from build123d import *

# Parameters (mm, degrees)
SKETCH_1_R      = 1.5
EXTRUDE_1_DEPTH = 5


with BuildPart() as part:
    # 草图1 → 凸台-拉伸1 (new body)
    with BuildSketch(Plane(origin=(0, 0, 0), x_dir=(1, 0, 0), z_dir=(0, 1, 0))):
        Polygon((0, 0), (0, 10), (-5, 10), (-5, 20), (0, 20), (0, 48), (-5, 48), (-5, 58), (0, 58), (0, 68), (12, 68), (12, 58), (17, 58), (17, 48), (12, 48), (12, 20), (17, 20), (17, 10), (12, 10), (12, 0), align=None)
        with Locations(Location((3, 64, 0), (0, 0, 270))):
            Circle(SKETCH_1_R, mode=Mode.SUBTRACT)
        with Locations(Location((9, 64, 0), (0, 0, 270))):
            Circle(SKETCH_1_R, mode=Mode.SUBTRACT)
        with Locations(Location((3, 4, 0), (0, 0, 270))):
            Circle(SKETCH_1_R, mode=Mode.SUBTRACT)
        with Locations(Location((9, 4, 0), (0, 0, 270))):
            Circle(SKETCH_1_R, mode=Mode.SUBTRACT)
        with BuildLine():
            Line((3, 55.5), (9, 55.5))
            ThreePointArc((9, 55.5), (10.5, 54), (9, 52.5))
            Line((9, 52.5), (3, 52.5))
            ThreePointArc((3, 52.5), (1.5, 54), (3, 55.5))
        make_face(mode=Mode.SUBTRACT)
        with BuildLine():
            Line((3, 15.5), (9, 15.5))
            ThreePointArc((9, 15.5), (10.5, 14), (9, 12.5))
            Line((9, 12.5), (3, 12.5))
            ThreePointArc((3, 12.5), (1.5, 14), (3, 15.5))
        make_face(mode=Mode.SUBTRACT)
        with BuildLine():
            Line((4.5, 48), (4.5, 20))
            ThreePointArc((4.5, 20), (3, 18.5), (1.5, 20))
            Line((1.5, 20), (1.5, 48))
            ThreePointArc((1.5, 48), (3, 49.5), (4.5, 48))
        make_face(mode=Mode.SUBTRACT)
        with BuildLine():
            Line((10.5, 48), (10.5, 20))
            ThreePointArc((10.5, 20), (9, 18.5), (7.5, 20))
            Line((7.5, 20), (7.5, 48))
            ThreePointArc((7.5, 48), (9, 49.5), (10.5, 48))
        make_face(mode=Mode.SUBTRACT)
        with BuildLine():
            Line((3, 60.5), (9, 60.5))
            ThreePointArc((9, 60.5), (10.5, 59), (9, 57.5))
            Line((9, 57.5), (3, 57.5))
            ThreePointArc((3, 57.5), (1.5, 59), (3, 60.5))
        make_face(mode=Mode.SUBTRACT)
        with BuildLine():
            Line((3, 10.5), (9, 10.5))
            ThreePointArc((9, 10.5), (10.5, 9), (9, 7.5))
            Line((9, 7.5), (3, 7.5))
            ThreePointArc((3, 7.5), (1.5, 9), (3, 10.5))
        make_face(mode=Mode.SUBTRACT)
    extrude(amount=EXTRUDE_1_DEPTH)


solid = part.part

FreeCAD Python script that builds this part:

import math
import FreeCAD as App
import Part
import Sketcher
Q = App.Units.Quantity

doc = App.newDocument("Part")
body = doc.addObject("PartDesign::Body", "Body")

sketch1 = doc.addObject("Sketcher::SketchObject", "Sketch")
body.addObject(sketch1)
sketch1.AttachmentSupport = (doc.XZ_Plane, [""])
sketch1.MapMode = "FlatFace"
sketch1.addGeometry([
    Part.LineSegment(App.Vector(0, -10, 0), App.Vector(0, 0, 0)),
    Part.LineSegment(App.Vector(0, 0, 0), App.Vector(12, 0, 0)),
    Part.LineSegment(App.Vector(12, 0, 0), App.Vector(12, -10, 0)),
    Part.LineSegment(App.Vector(12, -10, 0), App.Vector(17, -10, 0)),
    Part.LineSegment(App.Vector(17, -10, 0), App.Vector(17, -20, 0)),
    Part.LineSegment(App.Vector(17, -20, 0), App.Vector(12, -20, 0)),
    Part.LineSegment(App.Vector(12, -20, 0), App.Vector(12, -48, 0)),
    Part.LineSegment(App.Vector(12, -48, 0), App.Vector(17, -48, 0)),
    Part.LineSegment(App.Vector(17, -48, 0), App.Vector(17, -58, 0)),
    Part.LineSegment(App.Vector(17, -58, 0), App.Vector(12, -58, 0)),
    Part.LineSegment(App.Vector(12, -58, 0), App.Vector(12, -68, 0)),
    Part.LineSegment(App.Vector(12, -68, 0), App.Vector(0, -68, 0)),
    Part.LineSegment(App.Vector(0, -68, 0), App.Vector(0, -58, 0)),
    Part.LineSegment(App.Vector(0, -58, 0), App.Vector(-5, -58, 0)),
    Part.LineSegment(App.Vector(-5, -58, 0), App.Vector(-5, -48, 0)),
    Part.LineSegment(App.Vector(-5, -48, 0), App.Vector(0, -48, 0)),
    Part.LineSegment(App.Vector(0, -48, 0), App.Vector(0, -20, 0)),
    Part.LineSegment(App.Vector(0, -20, 0), App.Vector(-5, -20, 0)),
    Part.LineSegment(App.Vector(-5, -20, 0), App.Vector(-5, -10, 0)),
    Part.LineSegment(App.Vector(-5, -10, 0), App.Vector(0, -10, 0)),
    Part.Circle(App.Vector(9, -4, 0), App.Vector(0, 0, 1), 1.5),
    Part.LineSegment(App.Vector(3, -10.5, 0), App.Vector(9, -10.5, 0)),
    Part.ArcOfCircle(Part.Circle(App.Vector(9, -9, 0), App.Vector(0, 0, 1), 1.5), math.radians(-90), math.radians(90)),
    Part.LineSegment(App.Vector(9, -7.5, 0), App.Vector(3, -7.5, 0)),
    Part.ArcOfCircle(Part.Circle(App.Vector(3, -9, 0), App.Vector(0, 0, 1), 1.5), math.radians(90), math.radians(270)),
    Part.LineSegment(App.Vector(3, -15.5, 0), App.Vector(9, -15.5, 0)),
    Part.ArcOfCircle(Part.Circle(App.Vector(9, -14, 0), App.Vector(0, 0, 1), 1.5), math.radians(-90), math.radians(90)),
    Part.LineSegment(App.Vector(9, -12.5, 0), App.Vector(3, -12.5, 0)),
    Part.ArcOfCircle(Part.Circle(App.Vector(3, -14, 0), App.Vector(0, 0, 1), 1.5), math.radians(90), math.radians(270)),
    Part.Circle(App.Vector(3, -4, 0), App.Vector(0, 0, 1), 1.5),
    Part.LineSegment(App.Vector(10.5, -48, 0), App.Vector(10.5, -20, 0)),
    Part.ArcOfCircle(Part.Circle(App.Vector(9, -20, 0), App.Vector(0, 0, 1), 1.5), math.radians(0), math.radians(180)),
    Part.LineSegment(App.Vector(7.5, -20, 0), App.Vector(7.5, -48, 0)),
    Part.ArcOfCircle(Part.Circle(App.Vector(9, -48, 0), App.Vector(0, 0, 1), 1.5), math.radians(180), math.radians(360)),
    Part.Circle(App.Vector(9, -64, 0), App.Vector(0, 0, 1), 1.5),
    Part.LineSegment(App.Vector(4.5, -48, 0), App.Vector(4.5, -20, 0)),
    Part.ArcOfCircle(Part.Circle(App.Vector(3, -20, 0), App.Vector(0, 0, 1), 1.5), math.radians(0), math.radians(180)),
    Part.LineSegment(App.Vector(1.5, -20, 0), App.Vector(1.5, -48, 0)),
    Part.ArcOfCircle(Part.Circle(App.Vector(3, -48, 0), App.Vector(0, 0, 1), 1.5), math.radians(180), math.radians(360)),
    Part.LineSegment(App.Vector(3, -55.5, 0), App.Vector(9, -55.5, 0)),
    Part.ArcOfCircle(Part.Circle(App.Vector(9, -54, 0), App.Vector(0, 0, 1), 1.5), math.radians(-90), math.radians(90)),
    Part.LineSegment(App.Vector(9, -52.5, 0), App.Vector(3, -52.5, 0)),
    Part.ArcOfCircle(Part.Circle(App.Vector(3, -54, 0), App.Vector(0, 0, 1), 1.5), math.radians(90), math.radians(270)),
    Part.LineSegment(App.Vector(3, -60.5, 0), App.Vector(9, -60.5, 0)),
    Part.ArcOfCircle(Part.Circle(App.Vector(9, -59, 0), App.Vector(0, 0, 1), 1.5), math.radians(-90), math.radians(90)),
    Part.LineSegment(App.Vector(9, -57.5, 0), App.Vector(3, -57.5, 0)),
    Part.ArcOfCircle(Part.Circle(App.Vector(3, -59, 0), App.Vector(0, 0, 1), 1.5), math.radians(90), math.radians(270)),
    Part.Circle(App.Vector(3, -64, 0), App.Vector(0, 0, 1), 1.5),
], False)
sketch1.addConstraint([
    Sketcher.Constraint("Coincident", 0, 2, 1, 1),
    Sketcher.Constraint("Coincident", 1, 2, 2, 1),
    Sketcher.Constraint("Coincident", 2, 2, 3, 1),
    Sketcher.Constraint("Coincident", 3, 2, 4, 1),
    Sketcher.Constraint("Coincident", 4, 2, 5, 1),
    Sketcher.Constraint("Coincident", 5, 2, 6, 1),
    Sketcher.Constraint("Coincident", 6, 2, 7, 1),
    Sketcher.Constraint("Coincident", 7, 2, 8, 1),
    Sketcher.Constraint("Coincident", 8, 2, 9, 1),
    Sketcher.Constraint("Coincident", 9, 2, 10, 1),
    Sketcher.Constraint("Coincident", 10, 2, 11, 1),
    Sketcher.Constraint("Coincident", 11, 2, 12, 1),
    Sketcher.Constraint("Coincident", 12, 2, 13, 1),
    Sketcher.Constraint("Coincident", 13, 2, 14, 1),
    Sketcher.Constraint("Coincident", 14, 2, 15, 1),
    Sketcher.Constraint("Coincident", 15, 2, 16, 1),
    Sketcher.Constraint("Coincident", 16, 2, 17, 1),
    Sketcher.Constraint("Coincident", 17, 2, 18, 1),
    Sketcher.Constraint("Coincident", 18, 2, 19, 1),
    Sketcher.Constraint("Coincident", 19, 2, 0, 1),
    Sketcher.Constraint("Tangent", 21, 2, 22, 1),
    Sketcher.Constraint("Tangent", 22, 2, 23, 1),
    Sketcher.Constraint("Tangent", 23, 2, 24, 1),
    Sketcher.Constraint("Tangent", 24, 2, 21, 1),
    Sketcher.Constraint("Tangent", 25, 2, 26, 1),
    Sketcher.Constraint("Tangent", 26, 2, 27, 1),
    Sketcher.Constraint("Tangent", 27, 2, 28, 1),
    Sketcher.Constraint("Tangent", 28, 2, 25, 1),
    Sketcher.Constraint("Tangent", 30, 2, 31, 1),
    Sketcher.Constraint("Tangent", 31, 2, 32, 1),
    Sketcher.Constraint("Tangent", 32, 2, 33, 1),
    Sketcher.Constraint("Tangent", 33, 2, 30, 1),
    Sketcher.Constraint("Tangent", 35, 2, 36, 1),
    Sketcher.Constraint("Tangent", 36, 2, 37, 1),
    Sketcher.Constraint("Tangent", 37, 2, 38, 1),
    Sketcher.Constraint("Tangent", 38, 2, 35, 1),
    Sketcher.Constraint("Tangent", 39, 2, 40, 1),
    Sketcher.Constraint("Tangent", 40, 2, 41, 1),
    Sketcher.Constraint("Tangent", 41, 2, 42, 1),
    Sketcher.Constraint("Tangent", 42, 2, 39, 1),
    Sketcher.Constraint("Tangent", 43, 2, 44, 1),
    Sketcher.Constraint("Tangent", 44, 2, 45, 1),
    Sketcher.Constraint("Tangent", 45, 2, 46, 1),
    Sketcher.Constraint("Tangent", 46, 2, 43, 1),
    Sketcher.Constraint("Vertical", 0),
    Sketcher.Constraint("Horizontal", 1),
    Sketcher.Constraint("Vertical", 2),
    Sketcher.Constraint("Horizontal", 3),
    Sketcher.Constraint("Vertical", 4),
    Sketcher.Constraint("Horizontal", 5),
    Sketcher.Constraint("Vertical", 6),
    Sketcher.Constraint("Horizontal", 7),
    Sketcher.Constraint("Vertical", 8),
    Sketcher.Constraint("Horizontal", 9),
    Sketcher.Constraint("Vertical", 10),
    Sketcher.Constraint("Horizontal", 11),
    Sketcher.Constraint("Vertical", 12),
    Sketcher.Constraint("Horizontal", 13),
    Sketcher.Constraint("Vertical", 14),
    Sketcher.Constraint("Horizontal", 15),
    Sketcher.Constraint("Vertical", 16),
    Sketcher.Constraint("Horizontal", 17),
    Sketcher.Constraint("Vertical", 18),
    Sketcher.Constraint("Horizontal", 19),
    Sketcher.Constraint("Horizontal", 21),
    Sketcher.Constraint("Horizontal", 23),
    Sketcher.Constraint("Horizontal", 25),
    Sketcher.Constraint("Horizontal", 27),
    Sketcher.Constraint("Vertical", 30),
    Sketcher.Constraint("Vertical", 32),
    Sketcher.Constraint("Vertical", 35),
    Sketcher.Constraint("Vertical", 37),
    Sketcher.Constraint("Horizontal", 39),
    Sketcher.Constraint("Horizontal", 41),
    Sketcher.Constraint("Horizontal", 43),
    Sketcher.Constraint("Horizontal", 45),
    Sketcher.Constraint("Coincident", 0, 2, -1, 1),
    Sketcher.Constraint("Equal", 20, 22),
    Sketcher.Constraint("Equal", 24, 26),
    Sketcher.Constraint("Equal", 28, 29),
    Sketcher.Constraint("Equal", 29, 31),
    Sketcher.Constraint("Equal", 33, 34),
    Sketcher.Constraint("Equal", 34, 36),
    Sketcher.Constraint("Equal", 38, 40),
    Sketcher.Constraint("Equal", 42, 44),
    Sketcher.Constraint("Equal", 46, 47),
    Sketcher.Constraint("PointOnObject", 11, 2, -2),
    Sketcher.Constraint("PointOnObject", 15, 2, -2),
    Sketcher.Constraint("Horizontal", 20, 3, 29, 3),
    Sketcher.Constraint("Horizontal", 31, 3, 36, 3),
    Sketcher.Constraint("Horizontal", 33, 3, 38, 3),
    Sketcher.Constraint("Horizontal", 34, 3, 47, 3),
    Sketcher.Constraint("Horizontal", 36, 3, 4, 2),
    Sketcher.Constraint("Horizontal", 38, 3, 6, 2),
    Sketcher.Constraint("Horizontal", 9, 2, 12, 2),
    Sketcher.Constraint("Horizontal", 7, 2, 14, 2),
    Sketcher.Constraint("Horizontal", 5, 2, 16, 2),
    Sketcher.Constraint("Horizontal", 3, 2, 18, 2),
    Sketcher.Constraint("Vertical", 20, 3, 22, 3),
    Sketcher.Constraint("Vertical", 22, 3, 26, 3),
    Sketcher.Constraint("Vertical", 24, 3, 28, 3),
    Sketcher.Constraint("Vertical", 28, 3, 29, 3),
    Sketcher.Constraint("Vertical", 26, 3, 31, 3),
    Sketcher.Constraint("Vertical", 33, 3, 34, 3),
    Sketcher.Constraint("Vertical", 29, 3, 36, 3),
    Sketcher.Constraint("Vertical", 34, 3, 40, 3),
    Sketcher.Constraint("Vertical", 38, 3, 42, 3),
    Sketcher.Constraint("Vertical", 40, 3, 44, 3),
    Sketcher.Constraint("Vertical", 42, 3, 46, 3),
    Sketcher.Constraint("Vertical", 46, 3, 47, 3),
    Sketcher.Constraint("Vertical", 2, 2, 5, 2),
    Sketcher.Constraint("Vertical", 4, 2, 7, 2),
    Sketcher.Constraint("Vertical", 6, 2, 9, 2),
    Sketcher.Constraint("Vertical", 14, 2, 17, 2),
    Sketcher.Constraint("Equal", 9, 13),
    Sketcher.Constraint("Equal", 2, 4),
    Sketcher.Constraint("Equal", 4, 8),
    Sketcher.Constraint("Equal", 8, 10),
    Sketcher.Constraint("Diameter", 20, Q("3 mm")),
    Sketcher.Constraint("DistanceX", 1, 1, 1, 2, Q("12 mm")),
    Sketcher.Constraint("DistanceX", 3, 1, 3, 2, Q("5 mm")),
    Sketcher.Constraint("DistanceX", 21, 1, 21, 2, Q("6 mm")),
    Sketcher.Constraint("DistanceY", 0, 1, 0, 2, Q("10 mm")),
    Sketcher.Constraint("DistanceY", 6, 2, 6, 1, Q("28 mm")),
    Sketcher.Constraint("DistanceX", -1, 1, 20, 3, Q("9 mm")),
    Sketcher.Constraint("DistanceY", 20, 3, -1, 1, Q("4 mm")),
    Sketcher.Constraint("DistanceY", 22, 3, -1, 1, Q("9 mm")),
    Sketcher.Constraint("DistanceY", 26, 3, -1, 1, Q("14 mm")),
    Sketcher.Constraint("DistanceY", 34, 3, -1, 1, Q("64 mm")),
    Sketcher.Constraint("DistanceY", 40, 3, -1, 1, Q("54 mm")),
    Sketcher.Constraint("DistanceY", 44, 3, -1, 1, Q("59 mm")),
])
pad1 = doc.addObject("PartDesign::Pad", "Pad")
body.addObject(pad1)
pad1.Profile = sketch1
pad1.Length = 5
pad1.Reversed = True

doc.recompute()
